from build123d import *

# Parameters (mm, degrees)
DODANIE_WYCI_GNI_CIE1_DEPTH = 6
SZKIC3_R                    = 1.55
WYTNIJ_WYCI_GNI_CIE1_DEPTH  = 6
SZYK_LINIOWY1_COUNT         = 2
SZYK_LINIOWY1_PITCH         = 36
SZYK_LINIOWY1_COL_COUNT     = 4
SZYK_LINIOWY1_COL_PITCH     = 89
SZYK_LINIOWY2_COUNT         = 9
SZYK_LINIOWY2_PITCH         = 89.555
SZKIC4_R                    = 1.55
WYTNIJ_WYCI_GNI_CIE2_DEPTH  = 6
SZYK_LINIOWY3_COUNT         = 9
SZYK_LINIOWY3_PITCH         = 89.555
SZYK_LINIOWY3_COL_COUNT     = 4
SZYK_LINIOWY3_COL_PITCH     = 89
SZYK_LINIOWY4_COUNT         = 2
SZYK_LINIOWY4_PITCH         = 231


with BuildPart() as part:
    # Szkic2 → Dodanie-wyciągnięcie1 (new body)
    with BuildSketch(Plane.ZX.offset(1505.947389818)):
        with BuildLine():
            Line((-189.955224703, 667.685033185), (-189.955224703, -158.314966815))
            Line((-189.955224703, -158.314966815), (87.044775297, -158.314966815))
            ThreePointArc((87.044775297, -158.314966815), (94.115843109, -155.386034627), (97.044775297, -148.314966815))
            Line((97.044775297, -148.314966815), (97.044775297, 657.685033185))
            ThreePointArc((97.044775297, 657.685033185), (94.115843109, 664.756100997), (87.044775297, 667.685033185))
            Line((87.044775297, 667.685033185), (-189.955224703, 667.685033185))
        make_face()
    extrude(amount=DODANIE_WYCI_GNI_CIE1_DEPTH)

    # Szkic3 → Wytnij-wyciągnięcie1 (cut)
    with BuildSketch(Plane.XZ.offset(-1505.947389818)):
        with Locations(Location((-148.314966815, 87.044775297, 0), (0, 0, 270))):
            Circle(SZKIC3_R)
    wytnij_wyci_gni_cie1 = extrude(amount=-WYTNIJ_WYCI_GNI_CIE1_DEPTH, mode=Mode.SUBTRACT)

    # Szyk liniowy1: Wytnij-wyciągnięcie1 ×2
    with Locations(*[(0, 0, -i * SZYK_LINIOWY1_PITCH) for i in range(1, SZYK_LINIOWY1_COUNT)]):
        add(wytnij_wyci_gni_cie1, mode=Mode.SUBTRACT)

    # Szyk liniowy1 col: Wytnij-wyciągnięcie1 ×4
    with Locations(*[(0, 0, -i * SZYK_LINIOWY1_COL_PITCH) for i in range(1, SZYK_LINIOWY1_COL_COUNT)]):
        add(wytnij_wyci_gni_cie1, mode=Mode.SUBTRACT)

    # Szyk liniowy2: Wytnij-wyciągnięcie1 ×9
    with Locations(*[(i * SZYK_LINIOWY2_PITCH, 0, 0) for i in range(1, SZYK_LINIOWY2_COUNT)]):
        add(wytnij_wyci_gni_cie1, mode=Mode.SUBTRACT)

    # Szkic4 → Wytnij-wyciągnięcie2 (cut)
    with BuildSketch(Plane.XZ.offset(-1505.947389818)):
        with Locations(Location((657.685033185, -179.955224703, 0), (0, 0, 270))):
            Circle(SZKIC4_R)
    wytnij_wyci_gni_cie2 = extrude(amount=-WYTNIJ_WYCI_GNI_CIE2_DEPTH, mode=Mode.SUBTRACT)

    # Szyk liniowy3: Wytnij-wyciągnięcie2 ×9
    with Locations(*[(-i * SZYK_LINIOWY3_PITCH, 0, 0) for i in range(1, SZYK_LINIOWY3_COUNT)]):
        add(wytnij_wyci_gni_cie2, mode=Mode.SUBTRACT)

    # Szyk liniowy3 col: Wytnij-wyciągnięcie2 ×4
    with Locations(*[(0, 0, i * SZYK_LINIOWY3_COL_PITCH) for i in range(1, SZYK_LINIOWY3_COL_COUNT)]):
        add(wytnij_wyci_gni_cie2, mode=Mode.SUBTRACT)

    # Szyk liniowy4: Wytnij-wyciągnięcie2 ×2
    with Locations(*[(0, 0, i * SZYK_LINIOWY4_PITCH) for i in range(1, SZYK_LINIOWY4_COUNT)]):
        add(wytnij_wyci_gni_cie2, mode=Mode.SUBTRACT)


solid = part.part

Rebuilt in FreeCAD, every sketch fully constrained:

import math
import FreeCAD as App
import Part
import Sketcher
Q = App.Units.Quantity

doc = App.newDocument("Part")
params = doc.addObject("Spreadsheet::Sheet", "Params")
for row, (alias, value) in enumerate([
    ("sketch1_radius", "10 mm"),
    ("sketch1_width", "826 mm"),
    ("sketch1_height", "277 mm"),
    ("pad1_length", "6 mm"),
    ("sketch2_diameter", "3.1 mm"),
    ("pocket1_length", "6 mm"),
    ("linearpattern_pitch", "36 mm"),
    ("linearpattern2_pitch", "89 mm"),
    ("linearpattern3_pitch", "89.555 mm"),
    ("sketch3_diameter", "3.1 mm"),
    ("pocket2_length", "6 mm"),
    ("linearpattern4_pitch", "89.555 mm"),
    ("linearpattern5_pitch", "89 mm"),
    ("linearpattern6_pitch", "231 mm"),
], start=1):
    params.set(f"A{row}", alias)
    params.set(f"B{row}", "=" + value)
    params.setAlias(f"B{row}", alias)

body = doc.addObject("PartDesign::Body", "Body")

# Sketch on XZ plane
sketch1 = doc.addObject("Sketcher::SketchObject", "Sketch")
body.addObject(sketch1)
sketch1.AttachmentSupport = (doc.XZ_Plane, [""])
sketch1.MapMode = "FlatFace"
sketch1.AttachmentOffset = App.Placement(App.Vector(0, 0, -1505.94739), App.Rotation())
sketch1.addGeometry(Part.LineSegment(App.Vector(668, -190, 0), App.Vector(-158, -190, 0)), False)
sketch1.addGeometry(Part.LineSegment(App.Vector(-158, -190, 0), App.Vector(-158, 87, 0)), False)
sketch1.addGeometry(Part.ArcOfCircle(Part.Circle(App.Vector(-148, 87, 0), App.Vector(0, 0, 1), 10), math.radians(90), math.radians(180)), False)
sketch1.addGeometry(Part.LineSegment(App.Vector(-148, 97, 0), App.Vector(658, 97, 0)), False)
sketch1.addGeometry(Part.ArcOfCircle(Part.Circle(App.Vector(658, 87, 0), App.Vector(0, 0, 1), 10), math.radians(0), math.radians(90)), False)
sketch1.addGeometry(Part.LineSegment(App.Vector(668, 87, 0), App.Vector(668, -190, 0)), False)
sketch1.addConstraint(Sketcher.Constraint("Coincident", 0, 2, 1, 1))
sketch1.addConstraint(Sketcher.Constraint("Tangent", 1, 2, 2, 2))
sketch1.addConstraint(Sketcher.Constraint("Tangent", 2, 1, 3, 1))
sketch1.addConstraint(Sketcher.Constraint("Tangent", 3, 2, 4, 2))
sketch1.addConstraint(Sketcher.Constraint("Tangent", 4, 1, 5, 1))
sketch1.addConstraint(Sketcher.Constraint("Coincident", 5, 2, 0, 1))
sketch1.addConstraint(Sketcher.Constraint("Horizontal", 0))
sketch1.addConstraint(Sketcher.Constraint("Vertical", 1))
sketch1.addConstraint(Sketcher.Constraint("Horizontal", 3))
sketch1.addConstraint(Sketcher.Constraint("Vertical", 5))
sketch1.addConstraint(Sketcher.Constraint("Equal", 2, 4))
sketch1.addConstraint(Sketcher.Constraint("Radius", 2, Q("10 mm")))
sketch1.addConstraint(Sketcher.Constraint("DistanceX", 0, 2, 0, 1, Q("826 mm")))
sketch1.addConstraint(Sketcher.Constraint("DistanceY", 1, 1, 1, 2, Q("277 mm")))
sketch1.addConstraint(Sketcher.Constraint("DistanceX", 2, 3, -1, 1, Q("148.314967 mm")))
sketch1.addConstraint(Sketcher.Constraint("DistanceY", -1, 1, 2, 3, Q("87.044775 mm")))
sketch1.setExpression("Constraints[11]", "Params.sketch1_radius")
sketch1.setExpression("Constraints[12]", "Params.sketch1_width")
sketch1.setExpression("Constraints[13]", "Params.sketch1_height")
pad1 = doc.addObject("PartDesign::Pad", "Pad")
body.addObject(pad1)
pad1.Profile = sketch1
pad1.setExpression("Length", "Params.pad1_length")
pad1.Reversed = True

# Sketch on XZ plane
sketch2 = doc.addObject("Sketcher::SketchObject", "Sketch001")
body.addObject(sketch2)
sketch2.AttachmentSupport = (doc.XZ_Plane, [""])
sketch2.MapMode = "FlatFace"
sketch2.AttachmentOffset = App.Placement(App.Vector(0, 0, -1505.94739), App.Rotation())
sketch2.addGeometry(Part.Circle(App.Vector(-148.3, 87, 0), App.Vector(0, 0, 1), 1.6), False)
sketch2.addConstraint(Sketcher.Constraint("Diameter", 0, Q("3.1 mm")))
sketch2.addConstraint(Sketcher.Constraint("DistanceX", 0, 3, -1, 1, Q("148.314967 mm")))
sketch2.addConstraint(Sketcher.Constraint("DistanceY", -1, 1, 0, 3, Q("87.044775 mm")))
sketch2.setExpression("Constraints[0]", "Params.sketch2_diameter")
pocket1 = doc.addObject("PartDesign::Pocket", "Pocket")
body.addObject(pocket1)
pocket1.Profile = sketch2
pocket1.setExpression("Length", "Params.pocket1_length")
doc.recompute()

linearpattern = doc.addObject("PartDesign::LinearPattern", "LinearPattern")
body.addObject(linearpattern)
linearpattern.Originals = [pocket1]
linearpattern.Direction = (doc.Z_Axis, [""])
linearpattern.Mode = "offset"
linearpattern.setExpression("Offset", "Params.linearpattern_pitch")
linearpattern.Occurrences = 2
linearpattern.Reversed = True
body.Tip = linearpattern
doc.recompute()

linearpattern2 = doc.addObject("PartDesign::LinearPattern", "LinearPattern001")
body.addObject(linearpattern2)
linearpattern2.Originals = [pocket1]
linearpattern2.Direction = (doc.Z_Axis, [""])
linearpattern2.Mode = "offset"
linearpattern2.setExpression("Offset", "Params.linearpattern2_pitch")
linearpattern2.Occurrences = 4
linearpattern2.Reversed = True
body.Tip = linearpattern2
doc.recompute()

linearpattern3 = doc.addObject("PartDesign::LinearPattern", "LinearPattern002")
body.addObject(linearpattern3)
linearpattern3.Originals = [pocket1]
linearpattern3.Direction = (doc.X_Axis, [""])
linearpattern3.Mode = "offset"
linearpattern3.setExpression("Offset", "Params.linearpattern3_pitch")
linearpattern3.Occurrences = 9
body.Tip = linearpattern3

# Sketch on XZ plane
sketch3 = doc.addObject("Sketcher::SketchObject", "Sketch002")
body.addObject(sketch3)
sketch3.AttachmentSupport = (doc.XZ_Plane, [""])
sketch3.MapMode = "FlatFace"
sketch3.AttachmentOffset = App.Placement(App.Vector(0, 0, -1505.94739), App.Rotation())
sketch3.addGeometry(Part.Circle(App.Vector(657.7, -180, 0), App.Vector(0, 0, 1), 1.6), False)
sketch3.addConstraint(Sketcher.Constraint("Diameter", 0, Q("3.1 mm")))
sketch3.addConstraint(Sketcher.Constraint("DistanceX", -1, 1, 0, 3, Q("657.685033 mm")))
sketch3.addConstraint(Sketcher.Constraint("DistanceY", 0, 3, -1, 1, Q("179.955225 mm")))
sketch3.setExpression("Constraints[0]", "Params.sketch3_diameter")
pocket2 = doc.addObject("PartDesign::Pocket", "Pocket001")
body.addObject(pocket2)
pocket2.Profile = sketch3
pocket2.setExpression("Length", "Params.pocket2_length")
doc.recompute()

linearpattern4 = doc.addObject("PartDesign::LinearPattern", "LinearPattern003")
body.addObject(linearpattern4)
linearpattern4.Originals = [pocket2]
linearpattern4.Direction = (doc.X_Axis, [""])
linearpattern4.Mode = "offset"
linearpattern4.setExpression("Offset", "Params.linearpattern4_pitch")
linearpattern4.Occurrences = 9
linearpattern4.Reversed = True
body.Tip = linearpattern4
doc.recompute()

linearpattern5 = doc.addObject("PartDesign::LinearPattern", "LinearPattern004")
body.addObject(linearpattern5)
linearpattern5.Originals = [pocket2]
linearpattern5.Direction = (doc.Z_Axis, [""])
linearpattern5.Mode = "offset"
linearpattern5.setExpression("Offset", "Params.linearpattern5_pitch")
linearpattern5.Occurrences = 4
body.Tip = linearpattern5
doc.recompute()

linearpattern6 = doc.addObject("PartDesign::LinearPattern", "LinearPattern005")
body.addObject(linearpattern6)
linearpattern6.Originals = [pocket2]
linearpattern6.Direction = (doc.Z_Axis, [""])
linearpattern6.Mode = "offset"
linearpattern6.setExpression("Offset", "Params.linearpattern6_pitch")
linearpattern6.Occurrences = 2
body.Tip = linearpattern6

doc.recompute()
